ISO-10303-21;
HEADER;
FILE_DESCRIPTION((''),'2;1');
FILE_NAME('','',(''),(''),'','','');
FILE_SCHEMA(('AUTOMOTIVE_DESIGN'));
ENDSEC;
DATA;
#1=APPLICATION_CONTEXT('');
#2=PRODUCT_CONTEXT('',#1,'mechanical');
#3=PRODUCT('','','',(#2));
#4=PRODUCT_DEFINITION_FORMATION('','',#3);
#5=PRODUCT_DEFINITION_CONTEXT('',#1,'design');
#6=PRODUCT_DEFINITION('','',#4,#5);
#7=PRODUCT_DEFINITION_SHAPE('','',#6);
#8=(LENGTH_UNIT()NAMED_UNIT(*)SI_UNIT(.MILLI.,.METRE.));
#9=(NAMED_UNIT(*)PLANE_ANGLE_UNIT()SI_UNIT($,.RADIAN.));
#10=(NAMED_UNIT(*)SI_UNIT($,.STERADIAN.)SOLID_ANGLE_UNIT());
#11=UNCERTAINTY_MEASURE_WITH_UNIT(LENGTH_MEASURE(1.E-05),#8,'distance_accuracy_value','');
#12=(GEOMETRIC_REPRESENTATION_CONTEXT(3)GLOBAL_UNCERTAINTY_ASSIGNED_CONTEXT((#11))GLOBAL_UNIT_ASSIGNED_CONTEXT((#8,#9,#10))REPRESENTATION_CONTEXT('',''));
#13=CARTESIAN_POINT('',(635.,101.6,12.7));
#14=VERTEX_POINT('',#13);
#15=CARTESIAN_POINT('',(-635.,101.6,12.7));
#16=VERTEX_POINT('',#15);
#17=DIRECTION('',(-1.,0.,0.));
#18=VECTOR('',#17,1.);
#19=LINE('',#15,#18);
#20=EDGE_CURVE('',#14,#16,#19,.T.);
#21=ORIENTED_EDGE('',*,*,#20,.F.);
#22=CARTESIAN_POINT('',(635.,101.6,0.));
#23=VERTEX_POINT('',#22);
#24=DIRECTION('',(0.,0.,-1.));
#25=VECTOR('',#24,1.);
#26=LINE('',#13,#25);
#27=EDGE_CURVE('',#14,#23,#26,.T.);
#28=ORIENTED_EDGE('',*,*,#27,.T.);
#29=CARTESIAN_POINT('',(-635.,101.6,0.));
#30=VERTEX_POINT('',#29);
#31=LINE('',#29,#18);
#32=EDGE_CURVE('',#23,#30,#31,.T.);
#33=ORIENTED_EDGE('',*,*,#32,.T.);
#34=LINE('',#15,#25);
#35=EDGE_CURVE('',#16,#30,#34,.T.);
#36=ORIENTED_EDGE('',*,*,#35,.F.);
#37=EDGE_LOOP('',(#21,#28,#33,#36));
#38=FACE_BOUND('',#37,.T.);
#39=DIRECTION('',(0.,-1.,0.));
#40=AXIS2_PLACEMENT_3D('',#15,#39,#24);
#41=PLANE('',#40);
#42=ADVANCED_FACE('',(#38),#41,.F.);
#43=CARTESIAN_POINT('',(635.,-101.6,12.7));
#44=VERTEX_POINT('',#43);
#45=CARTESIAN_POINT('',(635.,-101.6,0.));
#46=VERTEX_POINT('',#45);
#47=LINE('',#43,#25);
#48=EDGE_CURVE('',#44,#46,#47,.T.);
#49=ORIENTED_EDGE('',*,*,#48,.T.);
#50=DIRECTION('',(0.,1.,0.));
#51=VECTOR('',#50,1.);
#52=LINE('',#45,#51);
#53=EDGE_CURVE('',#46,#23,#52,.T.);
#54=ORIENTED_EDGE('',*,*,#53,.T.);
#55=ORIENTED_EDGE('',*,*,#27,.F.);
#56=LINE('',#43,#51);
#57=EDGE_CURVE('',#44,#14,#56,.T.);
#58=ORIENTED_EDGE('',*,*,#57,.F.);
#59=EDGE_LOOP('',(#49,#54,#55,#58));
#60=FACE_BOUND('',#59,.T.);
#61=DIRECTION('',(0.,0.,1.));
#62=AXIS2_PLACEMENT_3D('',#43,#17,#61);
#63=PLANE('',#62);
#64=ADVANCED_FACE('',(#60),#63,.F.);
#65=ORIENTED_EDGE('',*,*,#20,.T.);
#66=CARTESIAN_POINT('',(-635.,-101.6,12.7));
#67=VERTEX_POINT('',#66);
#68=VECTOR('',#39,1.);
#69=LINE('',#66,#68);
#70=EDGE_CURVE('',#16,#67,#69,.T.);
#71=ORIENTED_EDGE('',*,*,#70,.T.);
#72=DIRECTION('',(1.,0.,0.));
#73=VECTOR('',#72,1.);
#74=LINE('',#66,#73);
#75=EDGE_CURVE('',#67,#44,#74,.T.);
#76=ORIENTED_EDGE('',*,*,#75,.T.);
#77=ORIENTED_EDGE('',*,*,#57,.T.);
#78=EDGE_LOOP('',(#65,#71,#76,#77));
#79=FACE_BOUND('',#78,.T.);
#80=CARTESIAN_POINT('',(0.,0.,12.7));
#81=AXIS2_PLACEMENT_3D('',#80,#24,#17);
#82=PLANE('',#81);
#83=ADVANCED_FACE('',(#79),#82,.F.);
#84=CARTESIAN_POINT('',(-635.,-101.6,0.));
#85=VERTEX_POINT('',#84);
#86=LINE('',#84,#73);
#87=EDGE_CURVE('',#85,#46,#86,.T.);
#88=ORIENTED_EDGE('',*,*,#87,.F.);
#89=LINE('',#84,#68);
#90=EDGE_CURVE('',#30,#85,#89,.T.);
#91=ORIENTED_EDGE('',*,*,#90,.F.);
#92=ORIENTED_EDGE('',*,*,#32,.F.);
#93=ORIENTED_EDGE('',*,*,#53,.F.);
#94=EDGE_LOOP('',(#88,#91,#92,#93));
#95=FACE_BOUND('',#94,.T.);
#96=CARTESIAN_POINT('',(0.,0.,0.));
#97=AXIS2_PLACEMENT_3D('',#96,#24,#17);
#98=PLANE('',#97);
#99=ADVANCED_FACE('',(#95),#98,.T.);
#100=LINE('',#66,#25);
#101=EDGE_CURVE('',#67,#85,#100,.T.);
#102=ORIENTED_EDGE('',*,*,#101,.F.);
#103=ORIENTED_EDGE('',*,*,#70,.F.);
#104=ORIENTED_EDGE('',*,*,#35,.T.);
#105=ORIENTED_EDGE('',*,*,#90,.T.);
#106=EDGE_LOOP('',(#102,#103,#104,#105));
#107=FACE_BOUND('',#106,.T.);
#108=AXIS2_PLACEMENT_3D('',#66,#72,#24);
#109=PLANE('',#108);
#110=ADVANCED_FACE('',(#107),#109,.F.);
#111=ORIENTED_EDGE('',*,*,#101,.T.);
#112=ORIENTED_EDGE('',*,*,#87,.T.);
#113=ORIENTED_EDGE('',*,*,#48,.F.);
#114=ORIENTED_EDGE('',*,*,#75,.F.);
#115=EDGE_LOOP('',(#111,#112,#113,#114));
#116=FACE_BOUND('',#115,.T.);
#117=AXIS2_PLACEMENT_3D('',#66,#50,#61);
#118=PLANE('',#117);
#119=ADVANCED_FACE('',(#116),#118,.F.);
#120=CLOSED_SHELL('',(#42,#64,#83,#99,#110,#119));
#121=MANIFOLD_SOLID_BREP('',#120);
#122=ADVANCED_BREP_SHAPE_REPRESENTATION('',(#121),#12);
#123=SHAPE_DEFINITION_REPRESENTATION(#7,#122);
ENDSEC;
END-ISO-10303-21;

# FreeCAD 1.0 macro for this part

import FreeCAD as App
import Part
import Sketcher

V = App.Vector
Q = App.Units.Quantity


def add_polygon(sketch, points):
    """Adds a closed chain of lines whose ends are joined by coincident constraints."""
    first, n = sketch.GeometryCount, len(points)
    for a, b in zip(points, points[1:] + points[:1]):
        sketch.addGeometry(Part.LineSegment(App.Vector(*a, 0), App.Vector(*b, 0)), False)
    for i in range(n):
        sketch.addConstraint(Sketcher.Constraint("Coincident", first + i, 2, first + (i + 1) % n, 1))

doc = App.newDocument("Part")
params = doc.addObject("Spreadsheet::Sheet", "Params")
for row, (alias, value) in enumerate([
    ("sketch1_width", "50 in"),
    ("sketch1_height", "8 in"),
    ("pad1_length", "0.5 in"),
], start=1):
    params.set(f"A{row}", alias)
    params.set(f"B{row}", "=" + value)
    params.setAlias(f"B{row}", alias)

body = doc.addObject("PartDesign::Body", "Body")

# Sketch on XY plane
sketch1 = body.newObject("Sketcher::SketchObject", "Sketch")
sketch1.AttachmentSupport = (doc.getObject("XY_Plane"), [""])
sketch1.MapMode = "FlatFace"
add_polygon(sketch1, [(-635, 101.6), (-635, -101.6), (635, -101.6), (635, 101.6)])  # lines 0-3
sketch1.addConstraint([
    Sketcher.Constraint("Vertical", 0),
    Sketcher.Constraint("Horizontal", 1),
    Sketcher.Constraint("Vertical", 2),
    Sketcher.Constraint("Horizontal", 3),
    Sketcher.Constraint("Symmetric", 0, 2, 2, 2, -1, 1),
    Sketcher.Constraint("DistanceX", 1, 1, 1, 2, Q("50 in")),
    Sketcher.Constraint("DistanceY", 0, 2, 0, 1, Q("8 in")),
])
sketch1.setExpression("Constraints[9]", "Params.sketch1_width")
sketch1.setExpression("Constraints[10]", "Params.sketch1_height")
pad1 = body.newObject("PartDesign::Pad", "Pad")
pad1.Profile = sketch1
pad1.setExpression("Length", "Params.pad1_length")

doc.recompute()
